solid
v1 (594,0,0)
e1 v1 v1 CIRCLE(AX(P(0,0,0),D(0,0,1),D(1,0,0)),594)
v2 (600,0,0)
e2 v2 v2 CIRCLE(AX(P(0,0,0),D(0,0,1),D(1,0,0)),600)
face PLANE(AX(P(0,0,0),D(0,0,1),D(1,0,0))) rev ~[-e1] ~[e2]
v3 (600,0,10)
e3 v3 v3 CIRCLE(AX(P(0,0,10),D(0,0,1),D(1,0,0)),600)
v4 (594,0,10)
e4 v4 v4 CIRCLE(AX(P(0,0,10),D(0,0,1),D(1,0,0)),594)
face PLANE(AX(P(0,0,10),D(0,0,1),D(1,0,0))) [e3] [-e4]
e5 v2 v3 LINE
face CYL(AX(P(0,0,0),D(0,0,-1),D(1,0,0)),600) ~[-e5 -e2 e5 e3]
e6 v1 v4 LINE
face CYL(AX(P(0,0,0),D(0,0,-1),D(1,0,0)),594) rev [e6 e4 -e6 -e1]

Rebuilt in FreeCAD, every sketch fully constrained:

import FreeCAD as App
import Part
import Sketcher
Q = App.Units.Quantity

doc = App.newDocument("Part")
params = doc.addObject("Spreadsheet::Sheet", "Params")
for row, (alias, value) in enumerate([
    ("sketch1_diameter", "1200 mm"),
    ("sketch1_diameter2", "1188 mm"),
    ("pad1_length", "10 mm"),
], start=1):
    params.set(f"A{row}", alias)
    params.set(f"B{row}", "=" + value)
    params.setAlias(f"B{row}", alias)

body = doc.addObject("PartDesign::Body", "Body")

sketch1 = doc.addObject("Sketcher::SketchObject", "Sketch")
body.addObject(sketch1)
sketch1.AttachmentSupport = (doc.XY_Plane, [""])
sketch1.MapMode = "FlatFace"
sketch1.addGeometry([
    Part.Circle(App.Vector(0, 0, 0), App.Vector(0, 0, 1), 600),
    Part.Circle(App.Vector(0, 0, 0), App.Vector(0, 0, 1), 594),
], False)
sketch1.addConstraint([
    Sketcher.Constraint("Coincident", 0, 3, -1, 1),
    Sketcher.Constraint("Coincident", 1, 3, -1, 1),
    Sketcher.Constraint("Diameter", 0, Q("1200 mm")),
    Sketcher.Constraint("Diameter", 1, Q("1188 mm")),
])
sketch1.setExpression("Constraints[2]", "Params.sketch1_diameter")
sketch1.setExpression("Constraints[3]", "Params.sketch1_diameter2")
pad1 = doc.addObject("PartDesign::Pad", "Pad")
body.addObject(pad1)
pad1.Profile = sketch1
pad1.setExpression("Length", "Params.pad1_length")

doc.recompute()
